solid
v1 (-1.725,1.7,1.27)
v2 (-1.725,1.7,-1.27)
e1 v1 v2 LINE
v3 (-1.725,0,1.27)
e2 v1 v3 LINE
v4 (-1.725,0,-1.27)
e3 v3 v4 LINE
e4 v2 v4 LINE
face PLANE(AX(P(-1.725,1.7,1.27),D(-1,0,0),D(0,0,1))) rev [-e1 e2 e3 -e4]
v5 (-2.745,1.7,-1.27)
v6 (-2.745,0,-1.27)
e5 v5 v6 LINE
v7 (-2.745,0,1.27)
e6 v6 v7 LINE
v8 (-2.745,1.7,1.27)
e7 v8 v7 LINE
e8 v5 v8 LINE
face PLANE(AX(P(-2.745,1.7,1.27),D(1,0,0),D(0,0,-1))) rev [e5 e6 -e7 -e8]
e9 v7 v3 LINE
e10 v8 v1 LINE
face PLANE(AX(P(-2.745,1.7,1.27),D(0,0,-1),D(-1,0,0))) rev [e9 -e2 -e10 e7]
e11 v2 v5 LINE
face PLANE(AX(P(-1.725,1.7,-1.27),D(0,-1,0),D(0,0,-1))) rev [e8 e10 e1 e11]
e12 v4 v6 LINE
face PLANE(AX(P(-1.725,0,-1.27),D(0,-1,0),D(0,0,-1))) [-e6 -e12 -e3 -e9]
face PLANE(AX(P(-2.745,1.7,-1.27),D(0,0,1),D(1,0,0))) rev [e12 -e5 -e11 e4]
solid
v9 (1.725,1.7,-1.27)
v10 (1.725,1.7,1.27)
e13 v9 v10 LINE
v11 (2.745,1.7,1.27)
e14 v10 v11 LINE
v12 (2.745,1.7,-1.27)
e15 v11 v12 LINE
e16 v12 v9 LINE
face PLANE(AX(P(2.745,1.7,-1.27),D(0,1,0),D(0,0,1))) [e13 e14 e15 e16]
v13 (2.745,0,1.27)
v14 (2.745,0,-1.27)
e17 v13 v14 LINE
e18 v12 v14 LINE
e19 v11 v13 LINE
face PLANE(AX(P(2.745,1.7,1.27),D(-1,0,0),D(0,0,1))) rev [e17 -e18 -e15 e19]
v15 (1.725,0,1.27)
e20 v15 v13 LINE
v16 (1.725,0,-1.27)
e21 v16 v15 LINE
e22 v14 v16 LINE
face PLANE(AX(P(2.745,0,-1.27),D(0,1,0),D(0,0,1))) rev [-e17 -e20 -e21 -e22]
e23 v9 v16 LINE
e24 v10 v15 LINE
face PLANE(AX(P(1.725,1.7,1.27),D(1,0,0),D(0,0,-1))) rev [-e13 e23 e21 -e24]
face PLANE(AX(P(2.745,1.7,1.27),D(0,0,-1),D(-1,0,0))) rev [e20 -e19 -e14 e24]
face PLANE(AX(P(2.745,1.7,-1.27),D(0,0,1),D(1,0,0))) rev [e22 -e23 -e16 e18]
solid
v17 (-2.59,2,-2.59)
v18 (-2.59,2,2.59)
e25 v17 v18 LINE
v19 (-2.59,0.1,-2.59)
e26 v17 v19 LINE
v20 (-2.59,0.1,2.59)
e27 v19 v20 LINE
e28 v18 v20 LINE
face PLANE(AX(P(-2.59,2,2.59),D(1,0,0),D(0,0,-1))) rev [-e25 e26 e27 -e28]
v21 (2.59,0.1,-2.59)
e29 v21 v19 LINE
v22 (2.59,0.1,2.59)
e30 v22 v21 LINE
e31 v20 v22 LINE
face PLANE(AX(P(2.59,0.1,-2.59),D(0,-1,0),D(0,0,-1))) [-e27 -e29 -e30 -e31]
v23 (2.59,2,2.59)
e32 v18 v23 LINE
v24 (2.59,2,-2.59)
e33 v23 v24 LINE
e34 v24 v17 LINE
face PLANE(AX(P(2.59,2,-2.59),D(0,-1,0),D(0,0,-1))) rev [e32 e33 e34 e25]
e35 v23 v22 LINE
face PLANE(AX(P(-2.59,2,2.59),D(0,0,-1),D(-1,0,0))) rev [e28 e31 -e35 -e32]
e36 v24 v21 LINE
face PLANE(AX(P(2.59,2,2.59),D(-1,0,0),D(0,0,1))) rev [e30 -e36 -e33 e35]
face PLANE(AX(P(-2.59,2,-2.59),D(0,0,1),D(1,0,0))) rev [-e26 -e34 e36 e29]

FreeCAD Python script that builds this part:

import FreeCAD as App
import Part
import Sketcher


def add_polygon(sketch, points):
    """Adds a closed chain of lines whose ends are joined by coincident constraints."""
    first, n = sketch.GeometryCount, len(points)
    for a, b in zip(points, points[1:] + points[:1]):
        sketch.addGeometry(Part.LineSegment(App.Vector(*a, 0), App.Vector(*b, 0)), False)
    for i in range(n):
        sketch.addConstraint(Sketcher.Constraint("Coincident", first + i, 2, first + (i + 1) % n, 1))

doc = App.newDocument("Part")
body = doc.addObject("PartDesign::Body", "Body")

# Sketch on XZ plane
sketch1 = doc.addObject("Sketcher::SketchObject", "Sketch")
body.addObject(sketch1)
sketch1.AttachmentSupport = (doc.XZ_Plane, [""])
sketch1.MapMode = "FlatFace"
sketch1.AttachmentOffset = App.Placement(App.Vector(0, 0, -0.1), App.Rotation())
add_polygon(sketch1, [(-3, -3), (-3, 3), (3, 3), (3, -3)])  # lines 0-3
sketch1.addConstraint([
    Sketcher.Constraint("Vertical", 0),
    Sketcher.Constraint("Horizontal", 1),
    Sketcher.Constraint("Vertical", 2),
    Sketcher.Constraint("Horizontal", 3),
    Sketcher.Constraint("Symmetric", 0, 2, 2, 2, -1, 1),
    Sketcher.Constraint("Equal", 3, 0),
    Sketcher.Constraint("DistanceX", 1, 1, 1, 2, 5.18),
])
pad1 = doc.addObject("PartDesign::Pad", "Pad")
body.addObject(pad1)
pad1.Profile = sketch1
pad1.Length = 1.9
pad1.Reversed = True
body2 = doc.addObject("PartDesign::Body", "Body001")

# Sketch on XZ plane
sketch2 = doc.addObject("Sketcher::SketchObject", "Sketch001")
body2.addObject(sketch2)
sketch2.AttachmentSupport = (doc.getObject("XZ_Plane001"), [""])
sketch2.MapMode = "FlatFace"
add_polygon(sketch2, [(-2.7, -1.3), (-2.7, 1.3), (-1.7, 1.3), (-1.7, -1.3)])  # lines 0-3
sketch2.addConstraint([
    Sketcher.Constraint("Vertical", 0),
    Sketcher.Constraint("Horizontal", 1),
    Sketcher.Constraint("Vertical", 2),
    Sketcher.Constraint("Horizontal", 3),
    Sketcher.Constraint("DistanceX", 1, 1, 1, 2, 1.02),
    Sketcher.Constraint("DistanceY", 0, 1, 0, 2, 2.54),
    Sketcher.Constraint("DistanceY", -1, 1, 0, 2, 1.27),
    Sketcher.Constraint("DistanceX", 0, 2, -1, 1, 2.745),
])
pad2 = doc.addObject("PartDesign::Pad", "Pad001")
body2.addObject(pad2)
pad2.Profile = sketch2
pad2.Length = 1.7
pad2.Reversed = True
body3 = doc.addObject("PartDesign::Body", "Body002")

# Sketch on XZ plane
sketch3 = doc.addObject("Sketcher::SketchObject", "Sketch002")
body3.addObject(sketch3)
sketch3.AttachmentSupport = (doc.getObject("XZ_Plane002"), [""])
sketch3.MapMode = "FlatFace"
add_polygon(sketch3, [(1.7, -1.3), (1.7, 1.3), (2.7, 1.3), (2.7, -1.3)])  # lines 0-3
sketch3.addConstraint([
    Sketcher.Constraint("Vertical", 0),
    Sketcher.Constraint("Horizontal", 1),
    Sketcher.Constraint("Vertical", 2),
    Sketcher.Constraint("Horizontal", 3),
    Sketcher.Constraint("DistanceX", 1, 1, 1, 2, 1.02),
    Sketcher.Constraint("DistanceY", 0, 1, 0, 2, 2.54),
    Sketcher.Constraint("DistanceY", -1, 1, 0, 2, 1.27),
    Sketcher.Constraint("DistanceX", -1, 1, 0, 2, 1.725),
])
pad3 = doc.addObject("PartDesign::Pad", "Pad002")
body3.addObject(pad3)
pad3.Profile = sketch3
pad3.Length = 1.7
pad3.Reversed = True

doc.recompute()
